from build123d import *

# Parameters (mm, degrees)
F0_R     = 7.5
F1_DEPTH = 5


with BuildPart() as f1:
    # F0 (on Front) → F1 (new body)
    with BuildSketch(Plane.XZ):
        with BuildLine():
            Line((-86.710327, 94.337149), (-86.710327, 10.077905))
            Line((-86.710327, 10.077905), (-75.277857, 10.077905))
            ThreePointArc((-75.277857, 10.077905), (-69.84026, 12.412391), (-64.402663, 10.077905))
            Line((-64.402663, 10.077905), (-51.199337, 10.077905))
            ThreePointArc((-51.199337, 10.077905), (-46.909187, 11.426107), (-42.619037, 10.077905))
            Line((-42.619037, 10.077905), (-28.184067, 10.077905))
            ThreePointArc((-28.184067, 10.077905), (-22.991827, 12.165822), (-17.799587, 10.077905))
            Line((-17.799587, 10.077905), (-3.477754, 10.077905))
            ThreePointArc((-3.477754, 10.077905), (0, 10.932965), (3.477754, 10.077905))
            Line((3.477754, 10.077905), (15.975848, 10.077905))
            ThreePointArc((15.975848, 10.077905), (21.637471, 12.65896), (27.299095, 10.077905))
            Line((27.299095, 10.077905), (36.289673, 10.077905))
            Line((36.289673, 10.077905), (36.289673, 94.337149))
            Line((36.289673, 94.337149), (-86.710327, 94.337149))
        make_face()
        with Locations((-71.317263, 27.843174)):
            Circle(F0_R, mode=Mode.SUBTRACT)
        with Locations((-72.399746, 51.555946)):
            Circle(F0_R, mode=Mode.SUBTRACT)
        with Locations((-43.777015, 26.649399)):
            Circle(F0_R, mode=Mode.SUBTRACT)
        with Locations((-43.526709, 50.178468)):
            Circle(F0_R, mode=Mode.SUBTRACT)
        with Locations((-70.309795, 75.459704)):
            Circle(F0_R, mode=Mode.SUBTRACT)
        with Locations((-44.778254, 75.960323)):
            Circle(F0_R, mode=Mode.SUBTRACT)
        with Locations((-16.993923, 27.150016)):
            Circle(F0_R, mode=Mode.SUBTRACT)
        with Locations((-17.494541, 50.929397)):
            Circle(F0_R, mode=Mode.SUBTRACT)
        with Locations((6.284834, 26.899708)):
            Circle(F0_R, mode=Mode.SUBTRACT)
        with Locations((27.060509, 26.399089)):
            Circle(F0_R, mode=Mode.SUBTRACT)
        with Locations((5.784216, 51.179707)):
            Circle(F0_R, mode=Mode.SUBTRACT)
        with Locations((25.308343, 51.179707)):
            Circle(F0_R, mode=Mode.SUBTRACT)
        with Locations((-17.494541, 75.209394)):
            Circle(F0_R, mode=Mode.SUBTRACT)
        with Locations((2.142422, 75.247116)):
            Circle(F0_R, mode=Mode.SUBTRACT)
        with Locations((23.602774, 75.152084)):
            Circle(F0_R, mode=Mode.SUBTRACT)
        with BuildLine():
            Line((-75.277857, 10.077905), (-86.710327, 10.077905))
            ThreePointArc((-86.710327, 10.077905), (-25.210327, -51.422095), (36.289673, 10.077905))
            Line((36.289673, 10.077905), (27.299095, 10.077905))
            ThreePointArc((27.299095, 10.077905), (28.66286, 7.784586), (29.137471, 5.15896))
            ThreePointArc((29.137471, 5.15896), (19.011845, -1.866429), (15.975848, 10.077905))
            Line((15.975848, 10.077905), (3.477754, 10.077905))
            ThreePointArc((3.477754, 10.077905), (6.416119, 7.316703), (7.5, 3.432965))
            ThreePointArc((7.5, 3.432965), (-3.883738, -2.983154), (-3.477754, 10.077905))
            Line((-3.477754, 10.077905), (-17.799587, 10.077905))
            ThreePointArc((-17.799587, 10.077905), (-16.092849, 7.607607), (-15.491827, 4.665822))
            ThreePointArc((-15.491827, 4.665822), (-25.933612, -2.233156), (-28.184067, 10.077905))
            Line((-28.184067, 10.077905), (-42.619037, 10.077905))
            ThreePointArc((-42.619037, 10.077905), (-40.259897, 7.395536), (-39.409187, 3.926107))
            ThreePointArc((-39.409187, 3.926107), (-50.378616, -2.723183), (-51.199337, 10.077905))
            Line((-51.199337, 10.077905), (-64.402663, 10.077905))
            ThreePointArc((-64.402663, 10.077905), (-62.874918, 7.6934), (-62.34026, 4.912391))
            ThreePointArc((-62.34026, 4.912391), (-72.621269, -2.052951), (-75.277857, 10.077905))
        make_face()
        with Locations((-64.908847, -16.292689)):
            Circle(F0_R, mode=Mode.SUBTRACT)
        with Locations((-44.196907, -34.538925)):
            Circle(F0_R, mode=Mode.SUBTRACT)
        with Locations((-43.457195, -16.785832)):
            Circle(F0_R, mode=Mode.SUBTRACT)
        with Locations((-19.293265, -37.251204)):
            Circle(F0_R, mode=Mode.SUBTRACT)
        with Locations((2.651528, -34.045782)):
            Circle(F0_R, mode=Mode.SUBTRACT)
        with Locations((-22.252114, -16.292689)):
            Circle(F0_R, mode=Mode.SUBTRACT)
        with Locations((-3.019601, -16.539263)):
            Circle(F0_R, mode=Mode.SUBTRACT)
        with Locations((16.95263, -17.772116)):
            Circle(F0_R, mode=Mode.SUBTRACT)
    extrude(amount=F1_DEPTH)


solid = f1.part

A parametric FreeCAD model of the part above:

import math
import FreeCAD as App
import Part
import Sketcher
from FreeCAD import Vector

doc = App.newDocument("Part")
body = doc.addObject("PartDesign::Body", "Body")

# Sketch on XZ plane
sketch1 = doc.addObject("Sketcher::SketchObject", "Sketch")
body.addObject(sketch1)
sketch1.AttachmentSupport = (doc.XZ_Plane, [""])
sketch1.MapMode = "FlatFace"
sketch1.addGeometry(Part.LineSegment(Vector(-87, 94, 0), Vector(-87, 10, 0)), False)
sketch1.addGeometry(Part.ArcOfCircle(Part.Circle(Vector(-25, 10, 0), Vector(0, 0, 1), 62), math.radians(180), math.radians(360)), False)
sketch1.addGeometry(Part.LineSegment(Vector(36, 10, 0), Vector(36, 94, 0)), False)
sketch1.addGeometry(Part.LineSegment(Vector(36, 94, 0), Vector(-87, 94, 0)), False)
sketch1.addGeometry(Part.Circle(Vector(-65, -16, 0), Vector(0, 0, 1), 8), False)
sketch1.addGeometry(Part.Circle(Vector(-44, -35, 0), Vector(0, 0, 1), 8), False)
sketch1.addGeometry(Part.Circle(Vector(-43, -17, 0), Vector(0, 0, 1), 8), False)
sketch1.addGeometry(Part.ArcOfCircle(Part.Circle(Vector(-70, 5, 0), Vector(0, 0, 1), 7), math.radians(44), math.radians(136)), False)
sketch1.addGeometry(Part.ArcOfCircle(Part.Circle(Vector(-70, 5, 0), Vector(0, 0, 1), 7), math.radians(0), math.radians(44)), False)
sketch1.addGeometry(Part.ArcOfCircle(Part.Circle(Vector(-70, 5, 0), Vector(0, 0, 1), 7), math.radians(136), math.radians(360)), False)
sketch1.addGeometry(Part.ArcOfCircle(Part.Circle(Vector(-47, 4, 0), Vector(0, 0, 1), 8), math.radians(55), math.radians(125)), False)
sketch1.addGeometry(Part.ArcOfCircle(Part.Circle(Vector(-47, 4, 0), Vector(0, 0, 1), 8), math.radians(0), math.radians(55)), False)
sketch1.addGeometry(Part.ArcOfCircle(Part.Circle(Vector(-47, 4, 0), Vector(0, 0, 1), 8), math.radians(125), math.radians(360)), False)
sketch1.addGeometry(Part.ArcOfCircle(Part.Circle(Vector(-23, 5, 0), Vector(0, 0, 1), 7), math.radians(46), math.radians(134)), False)
sketch1.addGeometry(Part.ArcOfCircle(Part.Circle(Vector(-23, 5, 0), Vector(0, 0, 1), 8), math.radians(0), math.radians(46)), False)
sketch1.addGeometry(Part.ArcOfCircle(Part.Circle(Vector(-23, 5, 0), Vector(0, 0, 1), 7), math.radians(134), math.radians(360)), False)
sketch1.addGeometry(Part.Circle(Vector(-19, -37, 0), Vector(0, 0, 1), 8), False)
sketch1.addGeometry(Part.Circle(Vector(3, -34, 0), Vector(0, 0, 1), 8), False)
sketch1.addGeometry(Part.Circle(Vector(-22, -16, 0), Vector(0, 0, 1), 8), False)
sketch1.addGeometry(Part.Circle(Vector(-3, -17, 0), Vector(0, 0, 1), 8), False)
sketch1.addGeometry(Part.Circle(Vector(17, -18, 0), Vector(0, 0, 1), 8), False)
sketch1.addGeometry(Part.ArcOfCircle(Part.Circle(Vector(0, 3, 0), Vector(0, 0, 1), 8), math.radians(62), math.radians(118)), False)
sketch1.addGeometry(Part.ArcOfCircle(Part.Circle(Vector(0, 3, 0), Vector(0, 0, 1), 7), math.radians(0), math.radians(62)), False)
sketch1.addGeometry(Part.ArcOfCircle(Part.Circle(Vector(0, 3, 0), Vector(0, 0, 1), 8), math.radians(118), math.radians(360)), False)
sketch1.addGeometry(Part.ArcOfCircle(Part.Circle(Vector(22, 5, 0), Vector(0, 0, 1), 8), math.radians(41), math.radians(139)), False)
sketch1.addGeometry(Part.ArcOfCircle(Part.Circle(Vector(22, 5, 0), Vector(0, 0, 1), 8), math.radians(0), math.radians(41)), False)
sketch1.addGeometry(Part.ArcOfCircle(Part.Circle(Vector(22, 5, 0), Vector(0, 0, 1), 7), math.radians(139), math.radians(360)), False)
sketch1.addGeometry(Part.Circle(Vector(-71, 28, 0), Vector(0, 0, 1), 8), False)
sketch1.addGeometry(Part.Circle(Vector(-44, 27, 0), Vector(0, 0, 1), 8), False)
sketch1.addGeometry(Part.Circle(Vector(-44, 50, 0), Vector(0, 0, 1), 8), False)
sketch1.addGeometry(Part.Circle(Vector(-72, 52, 0), Vector(0, 0, 1), 8), False)
sketch1.addGeometry(Part.Circle(Vector(-70, 75, 0), Vector(0, 0, 1), 8), False)
sketch1.addGeometry(Part.Circle(Vector(-45, 76, 0), Vector(0, 0, 1), 8), False)
sketch1.addGeometry(Part.Circle(Vector(-17, 27, 0), Vector(0, 0, 1), 8), False)
sketch1.addGeometry(Part.Circle(Vector(-17, 51, 0), Vector(0, 0, 1), 8), False)
sketch1.addGeometry(Part.Circle(Vector(6, 51, 0), Vector(0, 0, 1), 8), False)
sketch1.addGeometry(Part.Circle(Vector(6, 27, 0), Vector(0, 0, 1), 8), False)
sketch1.addGeometry(Part.Circle(Vector(27, 26, 0), Vector(0, 0, 1), 8), False)
sketch1.addGeometry(Part.Circle(Vector(25, 51, 0), Vector(0, 0, 1), 8), False)
sketch1.addGeometry(Part.Circle(Vector(-17, 75, 0), Vector(0, 0, 1), 8), False)
sketch1.addGeometry(Part.Circle(Vector(2, 75, 0), Vector(0, 0, 1), 8), False)
sketch1.addGeometry(Part.Circle(Vector(24, 75, 0), Vector(0, 0, 1), 8), False)
sketch1.addConstraint(Sketcher.Constraint("Tangent", 0, 2, 1, 1))
sketch1.addConstraint(Sketcher.Constraint("Tangent", 1, 2, 2, 1))
sketch1.addConstraint(Sketcher.Constraint("Coincident", 2, 2, 3, 1))
sketch1.addConstraint(Sketcher.Constraint("Coincident", 3, 2, 0, 1))
sketch1.addConstraint(Sketcher.Constraint("Tangent", 7, 1, 8, 2))
sketch1.addConstraint(Sketcher.Constraint("Tangent", 8, 1, 9, 2))
sketch1.addConstraint(Sketcher.Constraint("Tangent", 9, 1, 7, 2))
sketch1.addConstraint(Sketcher.Constraint("Tangent", 10, 1, 11, 2))
sketch1.addConstraint(Sketcher.Constraint("Tangent", 11, 1, 12, 2))
sketch1.addConstraint(Sketcher.Constraint("Tangent", 12, 1, 10, 2))
sketch1.addConstraint(Sketcher.Constraint("Tangent", 13, 1, 14, 2))
sketch1.addConstraint(Sketcher.Constraint("Tangent", 14, 1, 15, 2))
sketch1.addConstraint(Sketcher.Constraint("Tangent", 15, 1, 13, 2))
sketch1.addConstraint(Sketcher.Constraint("Tangent", 21, 1, 22, 2))
sketch1.addConstraint(Sketcher.Constraint("Tangent", 22, 1, 23, 2))
sketch1.addConstraint(Sketcher.Constraint("Tangent", 23, 1, 21, 2))
sketch1.addConstraint(Sketcher.Constraint("Tangent", 24, 1, 25, 2))
sketch1.addConstraint(Sketcher.Constraint("Tangent", 25, 1, 26, 2))
sketch1.addConstraint(Sketcher.Constraint("Tangent", 26, 1, 24, 2))
sketch1.addConstraint(Sketcher.Constraint("Vertical", 0))
sketch1.addConstraint(Sketcher.Constraint("Vertical", 2))
sketch1.addConstraint(Sketcher.Constraint("Horizontal", 3))
sketch1.addConstraint(Sketcher.Constraint("Equal", 4, 5))
sketch1.addConstraint(Sketcher.Constraint("Equal", 5, 6))
sketch1.addConstraint(Sketcher.Constraint("Equal", 6, 7))
sketch1.addConstraint(Sketcher.Constraint("Equal", 9, 12))
sketch1.addConstraint(Sketcher.Constraint("Equal", 12, 13))
sketch1.addConstraint(Sketcher.Constraint("Equal", 15, 16))
sketch1.addConstraint(Sketcher.Constraint("Equal", 16, 17))
sketch1.addConstraint(Sketcher.Constraint("Equal", 17, 18))
sketch1.addConstraint(Sketcher.Constraint("Equal", 18, 19))
sketch1.addConstraint(Sketcher.Constraint("Equal", 19, 20))
sketch1.addConstraint(Sketcher.Constraint("Equal", 20, 21))
sketch1.addConstraint(Sketcher.Constraint("Equal", 23, 24))
sketch1.addConstraint(Sketcher.Constraint("Equal", 26, 27))
sketch1.addConstraint(Sketcher.Constraint("Equal", 27, 28))
sketch1.addConstraint(Sketcher.Constraint("Equal", 28, 29))
sketch1.addConstraint(Sketcher.Constraint("Equal", 29, 30))
sketch1.addConstraint(Sketcher.Constraint("Equal", 30, 31))
sketch1.addConstraint(Sketcher.Constraint("Equal", 31, 32))
sketch1.addConstraint(Sketcher.Constraint("Equal", 32, 33))
sketch1.addConstraint(Sketcher.Constraint("Equal", 33, 34))
sketch1.addConstraint(Sketcher.Constraint("Equal", 34, 35))
sketch1.addConstraint(Sketcher.Constraint("Equal", 35, 36))
sketch1.addConstraint(Sketcher.Constraint("Equal", 36, 37))
sketch1.addConstraint(Sketcher.Constraint("Equal", 37, 38))
sketch1.addConstraint(Sketcher.Constraint("Equal", 38, 39))
sketch1.addConstraint(Sketcher.Constraint("Equal", 39, 40))
sketch1.addConstraint(Sketcher.Constraint("Equal", 40, 41))
sketch1.addConstraint(Sketcher.Constraint("Symmetric", 21, 1, 23, 1, -2))
sketch1.addConstraint(Sketcher.Constraint("Horizontal", 4, 3, 18, 3))
sketch1.addConstraint(Sketcher.Constraint("Horizontal", 35, 3, 38, 3))
sketch1.addConstraint(Sketcher.Constraint("Horizontal", 1, 2, 7, 1))
sketch1.addConstraint(Sketcher.Constraint("Horizontal", 9, 3, 8, 1))
sketch1.addConstraint(Sketcher.Constraint("Horizontal", 7, 1, 9, 1))
sketch1.addConstraint(Sketcher.Constraint("Horizontal", 9, 1, 10, 1))
sketch1.addConstraint(Sketcher.Constraint("Horizontal", 12, 3, 11, 1))
sketch1.addConstraint(Sketcher.Constraint("Horizontal", 10, 1, 12, 1))
sketch1.addConstraint(Sketcher.Constraint("Horizontal", 12, 1, 13, 1))
sketch1.addConstraint(Sketcher.Constraint("Horizontal", 15, 3, 14, 1))
sketch1.addConstraint(Sketcher.Constraint("Horizontal", 13, 1, 15, 1))
sketch1.addConstraint(Sketcher.Constraint("Horizontal", 15, 1, 21, 1))
sketch1.addConstraint(Sketcher.Constraint("Horizontal", 23, 3, 22, 1))
sketch1.addConstraint(Sketcher.Constraint("Horizontal", 23, 1, 24, 1))
sketch1.addConstraint(Sketcher.Constraint("Horizontal", 26, 3, 25, 1))
sketch1.addConstraint(Sketcher.Constraint("Horizontal", 24, 1, 26, 1))
sketch1.addConstraint(Sketcher.Constraint("Vertical", 34, 3, 39, 3))
sketch1.addConstraint(Sketcher.Constraint("Diameter", 4, 15.0))
sketch1.addConstraint(Sketcher.Constraint("Radius", 1, 61.5))
sketch1.addConstraint(Sketcher.Constraint("DistanceY", 28, 3, 34, 3, 24.279998))
sketch1.addConstraint(Sketcher.Constraint("DistanceY", 36, 3, 35, 3, 24.279999))
sketch1.addConstraint(Sketcher.Constraint("DistanceX", 19, 3, -1, 1, 3.019601))
sketch1.addConstraint(Sketcher.Constraint("DistanceY", -1, 1, 28, 3, 26.649399))
sketch1.addConstraint(Sketcher.Constraint("DistanceY", 10, 3, 1, 3, 6.1518))
sketch1.addConstraint(Sketcher.Constraint("DistanceX", 1, 3, 13, 3, 2.2185))
sketch1.addConstraint(Sketcher.Constraint("DistanceX", 24, 3, 1, 2, 14.652202))
sketch1.addConstraint(Sketcher.Constraint("DistanceX", 41, 3, 2, 2, 12.686899))
sketch1.addConstraint(Sketcher.Constraint("DistanceX", 9, 1, 8, 3, 5.437599))
sketch1.addConstraint(Sketcher.Constraint("DistanceY", 0, 2, 0, 1, 84.259244))
sketch1.addConstraint(Sketcher.Constraint("DistanceY", 4, 3, -1, 1, 16.292689))
sketch1.addConstraint(Sketcher.Constraint("DistanceY", 6, 3, -1, 1, 16.785832))
sketch1.addConstraint(Sketcher.Constraint("DistanceX", 7, 3, -1, 1, 69.84026))
sketch1.addConstraint(Sketcher.Constraint("DistanceY", -1, 1, 7, 3, 4.912392))
sketch1.addConstraint(Sketcher.Constraint("DistanceX", 11, 3, -1, 1, 46.909191))
sketch1.addConstraint(Sketcher.Constraint("DistanceX", 14, 3, -1, 1, 22.991829))
sketch1.addConstraint(Sketcher.Constraint("DistanceY", -1, 1, 14, 3, 4.665821))
sketch1.addConstraint(Sketcher.Constraint("DistanceX", -1, 1, 20, 3, 16.95263))
sketch1.addConstraint(Sketcher.Constraint("DistanceY", -1, 1, 24, 3, 5.15896))
sketch1.addConstraint(Sketcher.Constraint("DistanceX", 29, 3, -1, 1, 43.526709))
sketch1.addConstraint(Sketcher.Constraint("DistanceY", -1, 1, 29, 3, 50.178468))
sketch1.addConstraint(Sketcher.Constraint("DistanceX", 34, 3, -1, 1, 17.494541))
sketch1.addConstraint(Sketcher.Constraint("DistanceY", -1, 1, 36, 3, 26.899708))
sketch1.addConstraint(Sketcher.Constraint("DistanceX", -1, 1, 37, 3, 27.060509))
sketch1.addConstraint(Sketcher.Constraint("DistanceY", -1, 1, 37, 3, 26.399089))
sketch1.addConstraint(Sketcher.Constraint("DistanceX", -1, 1, 40, 3, 2.142422))
sketch1.addConstraint(Sketcher.Constraint("DistanceX", 4, 3, 1, 3, 39.69852))
sketch1.addConstraint(Sketcher.Constraint("DistanceX", 4, 3, 5, 3, 20.71194))
sketch1.addConstraint(Sketcher.Constraint("DistanceY", 5, 3, 1, 3, 44.61683))
sketch1.addConstraint(Sketcher.Constraint("DistanceX", 4, 3, 6, 3, 21.451652))
sketch1.addConstraint(Sketcher.Constraint("DistanceY", 16, 3, 5, 3, 2.712279))
sketch1.addConstraint(Sketcher.Constraint("DistanceX", 6, 3, 16, 3, 24.16393))
sketch1.addConstraint(Sketcher.Constraint("DistanceY", 16, 3, 17, 3, 3.205422))
sketch1.addConstraint(Sketcher.Constraint("DistanceX", 18, 3, 16, 3, 2.958849))
sketch1.addConstraint(Sketcher.Constraint("DistanceX", 19, 3, 17, 3, 5.671129))
sketch1.addConstraint(Sketcher.Constraint("DistanceY", 17, 3, 19, 3, 17.506519))
sketch1.addConstraint(Sketcher.Constraint("DistanceY", 16, 3, 20, 3, 19.479088))
sketch1.addConstraint(Sketcher.Constraint("DistanceY", 21, 3, 1, 3, 6.64494))
sketch1.addConstraint(Sketcher.Constraint("DistanceX", 27, 3, 11, 3, 24.408072))
sketch1.addConstraint(Sketcher.Constraint("DistanceY", 11, 3, 27, 3, 23.917069))
sketch1.addConstraint(Sketcher.Constraint("DistanceY", 27, 3, 30, 3, 23.712772))
sketch1.addConstraint(Sketcher.Constraint("DistanceX", 30, 3, 28, 3, 28.622731))
sketch1.addConstraint(Sketcher.Constraint("DistanceX", 30, 3, 8, 3, 2.559488))
sketch1.addConstraint(Sketcher.Constraint("DistanceX", 30, 3, 31, 3, 2.089951))
sketch1.addConstraint(Sketcher.Constraint("DistanceY", 30, 3, 31, 3, 23.903758))
sketch1.addConstraint(Sketcher.Constraint("DistanceX", 31, 3, 32, 3, 25.531541))
sketch1.addConstraint(Sketcher.Constraint("DistanceY", 31, 3, 32, 3, 0.500619))
sketch1.addConstraint(Sketcher.Constraint("DistanceY", 1, 3, 33, 3, 17.072111))
sketch1.addConstraint(Sketcher.Constraint("DistanceX", 28, 3, 33, 3, 26.783092))
sketch1.addConstraint(Sketcher.Constraint("DistanceX", 33, 3, 35, 3, 22.778139))
sketch1.addConstraint(Sketcher.Constraint("DistanceX", 35, 3, 36, 3, 0.500618))
sketch1.addConstraint(Sketcher.Constraint("DistanceX", 36, 3, 38, 3, 19.023509))
sketch1.addConstraint(Sketcher.Constraint("DistanceY", 39, 3, 32, 3, 0.750929))
sketch1.addConstraint(Sketcher.Constraint("DistanceY", 35, 3, 40, 3, 24.067409))
sketch1.addConstraint(Sketcher.Constraint("DistanceY", 41, 3, 39, 3, 0.05731))
pad1 = doc.addObject("PartDesign::Pad", "Pad")
body.addObject(pad1)
pad1.Profile = sketch1
pad1.Length = 5

doc.recompute()
